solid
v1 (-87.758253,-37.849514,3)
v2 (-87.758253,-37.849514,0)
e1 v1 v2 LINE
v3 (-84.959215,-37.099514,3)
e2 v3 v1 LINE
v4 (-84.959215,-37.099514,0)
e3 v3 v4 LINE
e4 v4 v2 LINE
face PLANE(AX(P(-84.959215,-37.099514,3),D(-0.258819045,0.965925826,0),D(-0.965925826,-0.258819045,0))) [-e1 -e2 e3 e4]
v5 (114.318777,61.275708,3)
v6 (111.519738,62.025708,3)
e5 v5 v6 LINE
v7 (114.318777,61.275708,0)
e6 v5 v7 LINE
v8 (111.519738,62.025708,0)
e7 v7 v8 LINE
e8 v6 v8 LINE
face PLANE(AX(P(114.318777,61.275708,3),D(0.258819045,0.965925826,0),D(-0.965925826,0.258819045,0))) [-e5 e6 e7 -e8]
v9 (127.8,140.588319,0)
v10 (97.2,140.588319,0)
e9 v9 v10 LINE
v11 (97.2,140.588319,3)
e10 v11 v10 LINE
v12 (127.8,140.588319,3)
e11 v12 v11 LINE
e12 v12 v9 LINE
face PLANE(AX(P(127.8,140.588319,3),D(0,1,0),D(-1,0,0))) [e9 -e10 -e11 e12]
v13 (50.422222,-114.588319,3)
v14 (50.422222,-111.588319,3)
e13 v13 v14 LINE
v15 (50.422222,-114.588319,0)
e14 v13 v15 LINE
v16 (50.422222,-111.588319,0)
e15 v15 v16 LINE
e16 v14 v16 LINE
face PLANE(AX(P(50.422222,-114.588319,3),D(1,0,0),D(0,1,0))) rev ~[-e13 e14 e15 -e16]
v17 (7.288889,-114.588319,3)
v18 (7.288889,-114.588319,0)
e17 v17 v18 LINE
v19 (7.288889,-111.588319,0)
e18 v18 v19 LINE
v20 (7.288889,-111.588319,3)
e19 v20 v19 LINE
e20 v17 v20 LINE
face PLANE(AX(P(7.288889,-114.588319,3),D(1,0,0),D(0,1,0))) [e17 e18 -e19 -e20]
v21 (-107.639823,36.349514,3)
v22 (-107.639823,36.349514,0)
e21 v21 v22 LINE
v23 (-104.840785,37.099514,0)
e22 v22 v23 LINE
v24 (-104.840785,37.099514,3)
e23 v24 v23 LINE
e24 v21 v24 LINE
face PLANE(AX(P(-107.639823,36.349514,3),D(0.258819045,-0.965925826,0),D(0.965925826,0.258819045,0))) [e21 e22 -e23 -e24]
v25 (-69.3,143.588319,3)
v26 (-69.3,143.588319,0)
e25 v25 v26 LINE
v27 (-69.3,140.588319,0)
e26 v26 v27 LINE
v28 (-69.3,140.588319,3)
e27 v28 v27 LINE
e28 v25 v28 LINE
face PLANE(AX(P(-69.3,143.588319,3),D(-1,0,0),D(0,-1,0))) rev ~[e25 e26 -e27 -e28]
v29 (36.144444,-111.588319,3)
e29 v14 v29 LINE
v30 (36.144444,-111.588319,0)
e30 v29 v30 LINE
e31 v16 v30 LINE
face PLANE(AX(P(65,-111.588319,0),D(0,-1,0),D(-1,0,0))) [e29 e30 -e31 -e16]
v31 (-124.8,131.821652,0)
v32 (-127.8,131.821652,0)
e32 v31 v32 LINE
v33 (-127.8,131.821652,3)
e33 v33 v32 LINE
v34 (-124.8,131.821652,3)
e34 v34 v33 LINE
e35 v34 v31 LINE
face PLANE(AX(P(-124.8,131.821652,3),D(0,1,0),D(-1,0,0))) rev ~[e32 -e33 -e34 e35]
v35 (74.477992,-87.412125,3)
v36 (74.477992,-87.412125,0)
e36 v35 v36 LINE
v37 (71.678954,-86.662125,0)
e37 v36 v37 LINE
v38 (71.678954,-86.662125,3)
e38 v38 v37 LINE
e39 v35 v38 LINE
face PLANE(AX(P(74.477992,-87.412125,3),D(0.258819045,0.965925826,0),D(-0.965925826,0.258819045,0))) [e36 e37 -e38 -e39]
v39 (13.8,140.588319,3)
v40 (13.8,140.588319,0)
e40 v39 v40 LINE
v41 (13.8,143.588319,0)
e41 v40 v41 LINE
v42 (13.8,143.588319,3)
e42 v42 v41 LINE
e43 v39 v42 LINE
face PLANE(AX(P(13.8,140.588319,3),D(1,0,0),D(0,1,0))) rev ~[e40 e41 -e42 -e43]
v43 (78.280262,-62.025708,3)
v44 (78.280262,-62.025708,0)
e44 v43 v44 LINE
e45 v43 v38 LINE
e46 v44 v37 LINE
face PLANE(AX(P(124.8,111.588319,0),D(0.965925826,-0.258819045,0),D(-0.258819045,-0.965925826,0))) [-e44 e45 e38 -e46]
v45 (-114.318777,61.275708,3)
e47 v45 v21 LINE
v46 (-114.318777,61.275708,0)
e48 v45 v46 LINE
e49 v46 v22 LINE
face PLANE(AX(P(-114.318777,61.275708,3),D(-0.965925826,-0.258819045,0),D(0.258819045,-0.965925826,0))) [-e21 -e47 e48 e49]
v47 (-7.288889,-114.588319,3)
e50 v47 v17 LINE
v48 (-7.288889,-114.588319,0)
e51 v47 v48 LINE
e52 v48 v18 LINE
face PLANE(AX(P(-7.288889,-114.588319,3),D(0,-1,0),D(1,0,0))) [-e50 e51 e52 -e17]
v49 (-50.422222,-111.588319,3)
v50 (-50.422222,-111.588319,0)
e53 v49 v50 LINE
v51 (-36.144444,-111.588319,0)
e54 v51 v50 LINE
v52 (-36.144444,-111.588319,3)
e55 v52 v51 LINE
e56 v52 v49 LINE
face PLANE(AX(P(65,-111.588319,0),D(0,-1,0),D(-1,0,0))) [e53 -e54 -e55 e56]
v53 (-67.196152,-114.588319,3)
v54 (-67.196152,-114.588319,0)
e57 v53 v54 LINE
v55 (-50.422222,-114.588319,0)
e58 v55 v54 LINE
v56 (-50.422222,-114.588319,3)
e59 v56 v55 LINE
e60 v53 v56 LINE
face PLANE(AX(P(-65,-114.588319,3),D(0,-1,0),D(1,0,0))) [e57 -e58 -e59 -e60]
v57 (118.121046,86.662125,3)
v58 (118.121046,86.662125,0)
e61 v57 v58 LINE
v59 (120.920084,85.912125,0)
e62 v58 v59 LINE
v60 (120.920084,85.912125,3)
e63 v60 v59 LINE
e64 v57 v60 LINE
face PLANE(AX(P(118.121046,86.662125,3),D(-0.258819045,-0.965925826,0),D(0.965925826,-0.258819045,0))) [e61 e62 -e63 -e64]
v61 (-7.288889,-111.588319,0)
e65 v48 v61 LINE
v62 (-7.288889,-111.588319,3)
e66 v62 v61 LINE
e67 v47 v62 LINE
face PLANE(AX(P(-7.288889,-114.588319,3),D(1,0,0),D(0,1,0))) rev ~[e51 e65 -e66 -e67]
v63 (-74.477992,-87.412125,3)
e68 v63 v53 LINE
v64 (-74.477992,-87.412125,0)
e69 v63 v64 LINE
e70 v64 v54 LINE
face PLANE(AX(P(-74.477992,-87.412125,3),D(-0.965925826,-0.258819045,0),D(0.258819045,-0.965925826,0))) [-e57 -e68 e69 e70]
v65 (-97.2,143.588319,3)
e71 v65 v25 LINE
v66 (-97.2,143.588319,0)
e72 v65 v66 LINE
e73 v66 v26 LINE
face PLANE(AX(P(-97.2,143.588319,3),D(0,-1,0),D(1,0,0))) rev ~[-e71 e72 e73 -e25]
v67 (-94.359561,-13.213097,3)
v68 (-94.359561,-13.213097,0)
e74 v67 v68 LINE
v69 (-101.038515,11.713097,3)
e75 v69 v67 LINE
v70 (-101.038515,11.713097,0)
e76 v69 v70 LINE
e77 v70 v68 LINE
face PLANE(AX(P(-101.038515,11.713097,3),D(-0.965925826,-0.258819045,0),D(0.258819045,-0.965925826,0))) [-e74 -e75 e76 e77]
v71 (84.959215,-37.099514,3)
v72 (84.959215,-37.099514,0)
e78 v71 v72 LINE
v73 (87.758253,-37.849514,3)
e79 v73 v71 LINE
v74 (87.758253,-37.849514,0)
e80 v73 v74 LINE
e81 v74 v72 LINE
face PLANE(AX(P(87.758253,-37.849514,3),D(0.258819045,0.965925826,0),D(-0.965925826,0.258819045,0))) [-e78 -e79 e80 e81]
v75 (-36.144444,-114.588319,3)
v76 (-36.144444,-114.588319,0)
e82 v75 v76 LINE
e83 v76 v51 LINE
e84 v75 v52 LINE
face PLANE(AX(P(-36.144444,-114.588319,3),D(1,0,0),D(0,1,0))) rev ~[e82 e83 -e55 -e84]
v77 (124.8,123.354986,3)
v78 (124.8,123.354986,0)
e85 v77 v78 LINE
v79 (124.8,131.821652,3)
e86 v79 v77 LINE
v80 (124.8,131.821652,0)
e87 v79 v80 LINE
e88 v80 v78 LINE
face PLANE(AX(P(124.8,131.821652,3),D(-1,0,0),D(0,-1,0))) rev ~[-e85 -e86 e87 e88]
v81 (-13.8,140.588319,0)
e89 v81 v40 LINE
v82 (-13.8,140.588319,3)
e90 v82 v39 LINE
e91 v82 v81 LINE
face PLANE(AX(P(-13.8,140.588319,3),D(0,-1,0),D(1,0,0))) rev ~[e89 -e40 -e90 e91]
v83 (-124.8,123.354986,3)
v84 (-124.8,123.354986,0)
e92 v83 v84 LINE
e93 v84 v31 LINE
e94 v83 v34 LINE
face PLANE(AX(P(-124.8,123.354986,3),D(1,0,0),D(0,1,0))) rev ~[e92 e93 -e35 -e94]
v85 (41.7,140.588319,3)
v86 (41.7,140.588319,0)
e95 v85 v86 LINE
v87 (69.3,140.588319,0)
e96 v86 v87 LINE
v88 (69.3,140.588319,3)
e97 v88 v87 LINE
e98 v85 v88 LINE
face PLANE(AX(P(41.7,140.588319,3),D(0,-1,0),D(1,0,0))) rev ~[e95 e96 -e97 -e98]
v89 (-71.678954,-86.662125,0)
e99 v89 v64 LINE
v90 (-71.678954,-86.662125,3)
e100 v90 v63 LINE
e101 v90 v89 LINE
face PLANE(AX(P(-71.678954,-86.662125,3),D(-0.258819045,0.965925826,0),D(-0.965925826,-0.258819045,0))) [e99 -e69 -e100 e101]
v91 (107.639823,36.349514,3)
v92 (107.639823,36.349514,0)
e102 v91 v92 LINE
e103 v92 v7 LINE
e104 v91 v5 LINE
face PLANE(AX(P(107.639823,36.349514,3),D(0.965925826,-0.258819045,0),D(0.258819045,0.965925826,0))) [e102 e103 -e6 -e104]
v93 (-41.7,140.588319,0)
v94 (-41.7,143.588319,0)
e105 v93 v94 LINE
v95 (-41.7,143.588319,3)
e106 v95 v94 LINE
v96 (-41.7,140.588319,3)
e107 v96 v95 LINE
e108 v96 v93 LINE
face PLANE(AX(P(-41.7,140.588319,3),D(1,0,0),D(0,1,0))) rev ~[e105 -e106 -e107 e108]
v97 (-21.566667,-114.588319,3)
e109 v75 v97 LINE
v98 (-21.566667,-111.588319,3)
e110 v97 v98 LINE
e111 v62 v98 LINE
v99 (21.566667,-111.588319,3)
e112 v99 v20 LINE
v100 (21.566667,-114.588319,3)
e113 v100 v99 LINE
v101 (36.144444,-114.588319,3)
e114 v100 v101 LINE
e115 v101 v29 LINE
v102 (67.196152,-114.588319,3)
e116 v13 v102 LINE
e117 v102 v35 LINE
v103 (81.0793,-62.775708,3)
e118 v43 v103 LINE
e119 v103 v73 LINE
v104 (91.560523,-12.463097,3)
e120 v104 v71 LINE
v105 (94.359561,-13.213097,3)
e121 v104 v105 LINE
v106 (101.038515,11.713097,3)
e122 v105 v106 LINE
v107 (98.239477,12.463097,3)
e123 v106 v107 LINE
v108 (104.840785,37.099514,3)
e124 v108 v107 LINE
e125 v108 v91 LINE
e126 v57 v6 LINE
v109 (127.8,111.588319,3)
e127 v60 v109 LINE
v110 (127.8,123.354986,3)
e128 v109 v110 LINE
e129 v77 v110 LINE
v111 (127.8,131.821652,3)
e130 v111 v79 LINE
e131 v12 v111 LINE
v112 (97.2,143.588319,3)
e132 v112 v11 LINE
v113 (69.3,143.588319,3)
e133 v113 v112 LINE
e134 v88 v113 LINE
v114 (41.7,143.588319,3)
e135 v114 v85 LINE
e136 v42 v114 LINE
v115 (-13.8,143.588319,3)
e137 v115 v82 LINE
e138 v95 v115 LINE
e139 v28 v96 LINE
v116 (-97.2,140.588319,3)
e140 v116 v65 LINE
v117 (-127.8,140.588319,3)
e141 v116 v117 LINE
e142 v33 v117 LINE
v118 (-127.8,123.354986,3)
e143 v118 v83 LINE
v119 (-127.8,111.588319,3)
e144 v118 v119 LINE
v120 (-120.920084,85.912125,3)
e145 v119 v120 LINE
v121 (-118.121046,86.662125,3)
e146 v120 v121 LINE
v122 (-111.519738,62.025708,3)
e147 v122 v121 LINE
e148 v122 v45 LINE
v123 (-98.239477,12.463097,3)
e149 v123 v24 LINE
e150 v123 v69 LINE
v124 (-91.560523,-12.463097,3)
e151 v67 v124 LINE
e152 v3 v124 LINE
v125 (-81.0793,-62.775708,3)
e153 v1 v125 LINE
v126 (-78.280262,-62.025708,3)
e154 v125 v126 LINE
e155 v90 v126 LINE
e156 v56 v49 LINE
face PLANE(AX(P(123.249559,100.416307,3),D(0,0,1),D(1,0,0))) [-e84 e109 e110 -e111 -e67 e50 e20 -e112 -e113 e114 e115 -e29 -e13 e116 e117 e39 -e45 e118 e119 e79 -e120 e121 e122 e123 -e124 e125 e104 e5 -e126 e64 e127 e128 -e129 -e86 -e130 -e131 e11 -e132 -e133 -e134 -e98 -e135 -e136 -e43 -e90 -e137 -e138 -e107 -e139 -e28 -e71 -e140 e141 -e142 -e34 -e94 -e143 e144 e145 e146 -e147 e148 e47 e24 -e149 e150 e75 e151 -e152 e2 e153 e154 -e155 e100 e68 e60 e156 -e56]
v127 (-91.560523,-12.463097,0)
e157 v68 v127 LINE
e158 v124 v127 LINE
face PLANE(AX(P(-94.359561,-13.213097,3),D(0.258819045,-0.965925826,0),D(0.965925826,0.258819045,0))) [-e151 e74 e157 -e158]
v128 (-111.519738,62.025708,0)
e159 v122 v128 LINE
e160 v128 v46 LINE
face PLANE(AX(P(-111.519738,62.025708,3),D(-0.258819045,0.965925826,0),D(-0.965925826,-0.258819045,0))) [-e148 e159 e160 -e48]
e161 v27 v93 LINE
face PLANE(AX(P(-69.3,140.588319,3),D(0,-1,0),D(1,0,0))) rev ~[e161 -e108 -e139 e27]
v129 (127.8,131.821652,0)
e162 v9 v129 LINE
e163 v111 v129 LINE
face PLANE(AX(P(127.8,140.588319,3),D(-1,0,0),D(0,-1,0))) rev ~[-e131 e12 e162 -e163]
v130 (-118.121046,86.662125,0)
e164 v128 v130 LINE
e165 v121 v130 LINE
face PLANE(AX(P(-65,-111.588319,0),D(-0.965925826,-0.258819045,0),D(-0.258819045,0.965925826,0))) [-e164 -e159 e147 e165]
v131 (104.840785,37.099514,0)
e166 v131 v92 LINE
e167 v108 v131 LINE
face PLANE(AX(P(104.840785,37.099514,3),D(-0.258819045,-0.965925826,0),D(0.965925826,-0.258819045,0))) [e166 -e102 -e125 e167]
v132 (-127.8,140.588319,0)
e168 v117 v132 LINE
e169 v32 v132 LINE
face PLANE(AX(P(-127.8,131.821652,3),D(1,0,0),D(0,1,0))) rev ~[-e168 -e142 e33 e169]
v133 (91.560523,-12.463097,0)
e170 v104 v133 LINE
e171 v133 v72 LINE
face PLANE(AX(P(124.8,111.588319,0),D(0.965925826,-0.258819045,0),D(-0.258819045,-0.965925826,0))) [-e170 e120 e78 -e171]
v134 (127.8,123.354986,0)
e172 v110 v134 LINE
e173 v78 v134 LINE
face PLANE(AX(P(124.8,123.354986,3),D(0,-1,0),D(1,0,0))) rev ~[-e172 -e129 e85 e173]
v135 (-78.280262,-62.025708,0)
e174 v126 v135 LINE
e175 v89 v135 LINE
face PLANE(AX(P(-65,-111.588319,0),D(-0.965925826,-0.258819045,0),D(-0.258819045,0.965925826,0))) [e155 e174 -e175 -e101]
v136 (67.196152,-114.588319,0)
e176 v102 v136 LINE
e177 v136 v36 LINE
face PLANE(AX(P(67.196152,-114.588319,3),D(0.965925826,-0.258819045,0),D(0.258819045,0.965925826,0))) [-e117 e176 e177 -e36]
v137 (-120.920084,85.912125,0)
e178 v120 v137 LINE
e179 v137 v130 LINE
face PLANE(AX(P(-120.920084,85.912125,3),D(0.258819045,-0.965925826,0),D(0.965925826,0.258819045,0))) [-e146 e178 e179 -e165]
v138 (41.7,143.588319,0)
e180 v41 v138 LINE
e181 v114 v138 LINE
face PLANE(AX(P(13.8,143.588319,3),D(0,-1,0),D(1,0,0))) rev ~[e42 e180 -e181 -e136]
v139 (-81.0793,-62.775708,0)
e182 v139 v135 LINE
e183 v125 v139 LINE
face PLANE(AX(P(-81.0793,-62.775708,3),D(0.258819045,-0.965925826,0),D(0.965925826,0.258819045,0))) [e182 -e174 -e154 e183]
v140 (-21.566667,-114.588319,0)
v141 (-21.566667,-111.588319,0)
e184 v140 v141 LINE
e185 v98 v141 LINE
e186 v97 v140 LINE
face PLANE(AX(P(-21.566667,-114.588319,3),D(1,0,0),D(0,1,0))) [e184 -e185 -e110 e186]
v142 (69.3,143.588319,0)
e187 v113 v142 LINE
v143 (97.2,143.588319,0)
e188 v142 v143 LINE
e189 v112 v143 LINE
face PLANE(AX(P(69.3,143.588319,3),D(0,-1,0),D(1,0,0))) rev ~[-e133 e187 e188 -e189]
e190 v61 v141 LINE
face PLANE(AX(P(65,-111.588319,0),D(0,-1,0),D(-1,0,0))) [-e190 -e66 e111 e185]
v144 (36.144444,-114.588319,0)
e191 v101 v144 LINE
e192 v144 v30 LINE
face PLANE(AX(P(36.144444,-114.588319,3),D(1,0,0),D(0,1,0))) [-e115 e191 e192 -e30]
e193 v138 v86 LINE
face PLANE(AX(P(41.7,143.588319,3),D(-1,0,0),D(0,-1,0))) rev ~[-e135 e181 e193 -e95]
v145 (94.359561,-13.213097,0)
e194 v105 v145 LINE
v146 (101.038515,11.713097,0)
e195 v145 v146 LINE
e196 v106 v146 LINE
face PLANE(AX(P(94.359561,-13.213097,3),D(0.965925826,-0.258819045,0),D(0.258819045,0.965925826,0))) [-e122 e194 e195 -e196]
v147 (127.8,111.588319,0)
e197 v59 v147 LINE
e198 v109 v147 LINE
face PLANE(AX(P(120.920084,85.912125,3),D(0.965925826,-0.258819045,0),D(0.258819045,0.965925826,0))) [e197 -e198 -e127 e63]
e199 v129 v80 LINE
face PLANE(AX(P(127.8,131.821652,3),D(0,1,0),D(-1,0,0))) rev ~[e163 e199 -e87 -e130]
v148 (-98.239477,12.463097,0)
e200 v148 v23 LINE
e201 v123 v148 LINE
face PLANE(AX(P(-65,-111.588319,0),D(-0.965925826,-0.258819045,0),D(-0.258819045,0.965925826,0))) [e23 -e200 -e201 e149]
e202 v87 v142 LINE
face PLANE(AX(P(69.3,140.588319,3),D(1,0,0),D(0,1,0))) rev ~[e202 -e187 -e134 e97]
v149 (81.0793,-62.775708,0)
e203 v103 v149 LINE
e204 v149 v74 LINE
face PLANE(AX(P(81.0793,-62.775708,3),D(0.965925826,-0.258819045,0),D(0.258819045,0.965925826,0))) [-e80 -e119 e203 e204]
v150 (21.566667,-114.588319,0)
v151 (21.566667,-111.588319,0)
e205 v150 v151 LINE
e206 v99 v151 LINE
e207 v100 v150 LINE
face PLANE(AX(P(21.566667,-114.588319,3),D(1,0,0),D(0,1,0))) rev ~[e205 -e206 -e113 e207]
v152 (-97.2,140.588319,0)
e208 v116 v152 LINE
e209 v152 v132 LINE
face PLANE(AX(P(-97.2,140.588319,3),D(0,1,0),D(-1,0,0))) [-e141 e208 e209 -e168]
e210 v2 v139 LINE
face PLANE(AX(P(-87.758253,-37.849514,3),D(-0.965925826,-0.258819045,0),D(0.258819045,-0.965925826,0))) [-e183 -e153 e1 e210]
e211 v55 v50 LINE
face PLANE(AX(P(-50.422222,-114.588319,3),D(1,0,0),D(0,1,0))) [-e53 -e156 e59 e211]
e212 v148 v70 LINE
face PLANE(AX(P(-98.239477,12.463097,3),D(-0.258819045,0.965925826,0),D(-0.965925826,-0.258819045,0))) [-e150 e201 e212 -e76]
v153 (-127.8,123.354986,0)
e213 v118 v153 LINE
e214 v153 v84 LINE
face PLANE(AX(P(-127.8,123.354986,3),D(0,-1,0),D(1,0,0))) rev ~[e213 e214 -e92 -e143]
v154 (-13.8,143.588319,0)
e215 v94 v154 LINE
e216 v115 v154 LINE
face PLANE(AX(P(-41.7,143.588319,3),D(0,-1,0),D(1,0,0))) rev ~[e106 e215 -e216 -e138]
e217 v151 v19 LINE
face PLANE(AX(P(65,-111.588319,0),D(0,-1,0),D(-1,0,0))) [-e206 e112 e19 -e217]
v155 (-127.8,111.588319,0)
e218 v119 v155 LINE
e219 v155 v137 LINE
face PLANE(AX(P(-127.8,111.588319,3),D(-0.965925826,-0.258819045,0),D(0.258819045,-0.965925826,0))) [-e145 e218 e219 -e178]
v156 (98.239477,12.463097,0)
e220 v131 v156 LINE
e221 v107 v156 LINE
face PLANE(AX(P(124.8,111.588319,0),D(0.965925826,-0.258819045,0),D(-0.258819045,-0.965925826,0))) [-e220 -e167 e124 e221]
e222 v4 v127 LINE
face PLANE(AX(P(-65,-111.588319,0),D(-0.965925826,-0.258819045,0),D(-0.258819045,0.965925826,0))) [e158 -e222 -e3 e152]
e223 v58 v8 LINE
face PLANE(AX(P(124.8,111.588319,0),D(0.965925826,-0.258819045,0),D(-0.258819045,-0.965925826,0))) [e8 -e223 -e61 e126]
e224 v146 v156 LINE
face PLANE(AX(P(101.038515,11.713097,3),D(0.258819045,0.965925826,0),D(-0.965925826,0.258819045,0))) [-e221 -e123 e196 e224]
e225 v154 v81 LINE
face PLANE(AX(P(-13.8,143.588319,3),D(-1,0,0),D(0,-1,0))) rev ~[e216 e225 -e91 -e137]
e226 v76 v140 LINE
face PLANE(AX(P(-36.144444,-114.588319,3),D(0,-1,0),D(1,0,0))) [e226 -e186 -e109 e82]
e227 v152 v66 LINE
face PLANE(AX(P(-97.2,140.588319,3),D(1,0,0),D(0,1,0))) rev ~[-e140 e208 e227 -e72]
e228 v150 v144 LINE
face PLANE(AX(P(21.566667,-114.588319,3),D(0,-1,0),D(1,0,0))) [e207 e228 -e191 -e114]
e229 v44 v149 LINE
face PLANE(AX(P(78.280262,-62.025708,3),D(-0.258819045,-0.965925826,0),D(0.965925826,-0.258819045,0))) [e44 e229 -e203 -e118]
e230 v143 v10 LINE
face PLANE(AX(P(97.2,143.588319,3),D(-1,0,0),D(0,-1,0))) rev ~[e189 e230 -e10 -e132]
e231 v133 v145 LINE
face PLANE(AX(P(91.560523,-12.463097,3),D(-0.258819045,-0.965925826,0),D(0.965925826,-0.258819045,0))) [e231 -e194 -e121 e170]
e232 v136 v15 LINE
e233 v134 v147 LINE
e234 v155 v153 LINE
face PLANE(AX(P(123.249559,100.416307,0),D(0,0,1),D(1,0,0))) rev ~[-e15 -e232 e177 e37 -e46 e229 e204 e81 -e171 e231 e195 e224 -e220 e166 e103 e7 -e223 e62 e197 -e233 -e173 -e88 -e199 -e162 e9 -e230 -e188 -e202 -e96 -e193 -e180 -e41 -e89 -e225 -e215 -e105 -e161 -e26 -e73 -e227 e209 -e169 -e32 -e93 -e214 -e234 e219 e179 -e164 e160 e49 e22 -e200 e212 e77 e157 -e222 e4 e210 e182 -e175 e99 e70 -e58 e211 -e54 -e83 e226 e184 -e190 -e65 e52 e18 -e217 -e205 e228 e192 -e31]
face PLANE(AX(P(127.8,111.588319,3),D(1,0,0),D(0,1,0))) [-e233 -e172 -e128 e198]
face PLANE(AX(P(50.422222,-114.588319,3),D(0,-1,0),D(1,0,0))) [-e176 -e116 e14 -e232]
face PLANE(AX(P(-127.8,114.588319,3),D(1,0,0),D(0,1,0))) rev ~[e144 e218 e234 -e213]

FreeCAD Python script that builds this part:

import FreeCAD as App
import Part
import Sketcher
Q = App.Units.Quantity

doc = App.newDocument("Part")
body = doc.addObject("PartDesign::Body", "Body")

# Sketch on XY plane
sketch1 = doc.addObject("Sketcher::SketchObject", "Sketch")
body.addObject(sketch1)
sketch1.AttachmentSupport = (doc.XY_Plane, [""])
sketch1.MapMode = "FlatFace"
sketch1.addGeometry(Part.LineSegment(App.Vector(125, 112, 0), App.Vector(-125, 112, 0)), False)
sketch1.addGeometry(Part.LineSegment(App.Vector(-125, 112, 0), App.Vector(-65, -112, 0)), False)
sketch1.addGeometry(Part.LineSegment(App.Vector(-65, -112, 0), App.Vector(65, -112, 0)), False)
sketch1.addGeometry(Part.LineSegment(App.Vector(65, -112, 0), App.Vector(125, 112, 0)), False)
sketch1.addConstraint(Sketcher.Constraint("Coincident", 0, 2, 1, 1))
sketch1.addConstraint(Sketcher.Constraint("Coincident", 1, 2, 2, 1))
sketch1.addConstraint(Sketcher.Constraint("Coincident", 2, 2, 3, 1))
sketch1.addConstraint(Sketcher.Constraint("Coincident", 3, 2, 0, 1))
sketch1.addConstraint(Sketcher.Constraint("Horizontal", 0))
sketch1.addConstraint(Sketcher.Constraint("Horizontal", 2))
sketch1.addConstraint(Sketcher.Constraint("Equal", 1, 3))
sketch1.addConstraint(Sketcher.Constraint("DistanceX", 2, 1, 2, 2, 130.0))
sketch1.addConstraint(Sketcher.Constraint("Angle", 1, Q("-75 deg")))
sketch1.addConstraint(Sketcher.Constraint("DistanceX", 0, 2, 0, 1, 249.6))
sketch1.addConstraint(Sketcher.Constraint("DistanceX", 1, 2, -1, 1, 65.0))
sketch1.addConstraint(Sketcher.Constraint("DistanceY", -1, 1, 0, 2, 111.588319))
pad1 = doc.addObject("PartDesign::Pad", "Pad")
body.addObject(pad1)
pad1.Profile = sketch1
pad1.Length = 3

# Sketch on XY plane
sketch2 = doc.addObject("Sketcher::SketchObject", "Sketch001")
body.addObject(sketch2)
sketch2.AttachmentSupport = (doc.XY_Plane, [""])
sketch2.MapMode = "FlatFace"
sketch2.AttachmentOffset = App.Placement(App.Vector(0, 0, 3), App.Rotation())
sketch2.addGeometry(Part.LineSegment(App.Vector(-124.8, 114.6, 0), App.Vector(-124.8, 111.6, 0)), False)
sketch2.addGeometry(Part.LineSegment(App.Vector(-124.8, 111.6, 0), App.Vector(124.8, 111.6, 0)), False)
sketch2.addGeometry(Part.LineSegment(App.Vector(124.8, 111.6, 0), App.Vector(124.8, 114.6, 0)), False)
sketch2.addGeometry(Part.LineSegment(App.Vector(124.8, 114.6, 0), App.Vector(-124.8, 114.6, 0)), False)
sketch2.addGeometry(Part.LineSegment(App.Vector(-65, -111.6, 0), App.Vector(-65, -114.6, 0)), False)
sketch2.addGeometry(Part.LineSegment(App.Vector(-65, -114.6, 0), App.Vector(-50.4, -114.6, 0)), False)
sketch2.addGeometry(Part.LineSegment(App.Vector(-50.4, -114.6, 0), App.Vector(-50.4, -111.6, 0)), False)
sketch2.addGeometry(Part.LineSegment(App.Vector(-50.4, -111.6, 0), App.Vector(-65, -111.6, 0)), False)
sketch2.addGeometry(Part.LineSegment(App.Vector(-36.1, -111.6, 0), App.Vector(-36.1, -114.6, 0)), False)
sketch2.addGeometry(Part.LineSegment(App.Vector(-36.1, -114.6, 0), App.Vector(-21.6, -114.6, 0)), False)
sketch2.addGeometry(Part.LineSegment(App.Vector(-21.6, -114.6, 0), App.Vector(-21.6, -111.6, 0)), False)
sketch2.addGeometry(Part.LineSegment(App.Vector(-21.6, -111.6, 0), App.Vector(-36.1, -111.6, 0)), False)
sketch2.addGeometry(Part.LineSegment(App.Vector(-7.3, -111.6, 0), App.Vector(-7.3, -114.6, 0)), False)
sketch2.addGeometry(Part.LineSegment(App.Vector(-7.3, -114.6, 0), App.Vector(7.3, -114.6, 0)), False)
sketch2.addGeometry(Part.LineSegment(App.Vector(7.3, -114.6, 0), App.Vector(7.3, -111.6, 0)), False)
sketch2.addGeometry(Part.LineSegment(App.Vector(7.3, -111.6, 0), App.Vector(-7.3, -111.6, 0)), False)
sketch2.addGeometry(Part.LineSegment(App.Vector(21.6, -111.6, 0), App.Vector(21.6, -114.6, 0)), False)
sketch2.addGeometry(Part.LineSegment(App.Vector(21.6, -114.6, 0), App.Vector(36.1, -114.6, 0)), False)
sketch2.addGeometry(Part.LineSegment(App.Vector(36.1, -114.6, 0), App.Vector(36.1, -111.6, 0)), False)
sketch2.addGeometry(Part.LineSegment(App.Vector(36.1, -111.6, 0), App.Vector(21.6, -111.6, 0)), False)
sketch2.addGeometry(Part.LineSegment(App.Vector(50.4, -111.6, 0), App.Vector(50.4, -114.6, 0)), False)
sketch2.addGeometry(Part.LineSegment(App.Vector(50.4, -114.6, 0), App.Vector(65, -114.6, 0)), False)
sketch2.addGeometry(Part.LineSegment(App.Vector(65, -114.6, 0), App.Vector(65, -111.6, 0)), False)
sketch2.addGeometry(Part.LineSegment(App.Vector(65, -111.6, 0), App.Vector(50.4, -111.6, 0)), False)
sketch2.addConstraint(Sketcher.Constraint("Coincident", 0, 2, 1, 1))
sketch2.addConstraint(Sketcher.Constraint("Coincident", 1, 2, 2, 1))
sketch2.addConstraint(Sketcher.Constraint("Coincident", 2, 2, 3, 1))
sketch2.addConstraint(Sketcher.Constraint("Coincident", 3, 2, 0, 1))
sketch2.addConstraint(Sketcher.Constraint("Coincident", 4, 2, 5, 1))
sketch2.addConstraint(Sketcher.Constraint("Coincident", 5, 2, 6, 1))
sketch2.addConstraint(Sketcher.Constraint("Coincident", 6, 2, 7, 1))
sketch2.addConstraint(Sketcher.Constraint("Coincident", 7, 2, 4, 1))
sketch2.addConstraint(Sketcher.Constraint("Coincident", 8, 2, 9, 1))
sketch2.addConstraint(Sketcher.Constraint("Coincident", 9, 2, 10, 1))
sketch2.addConstraint(Sketcher.Constraint("Coincident", 10, 2, 11, 1))
sketch2.addConstraint(Sketcher.Constraint("Coincident", 11, 2, 8, 1))
sketch2.addConstraint(Sketcher.Constraint("Coincident", 12, 2, 13, 1))
sketch2.addConstraint(Sketcher.Constraint("Coincident", 13, 2, 14, 1))
sketch2.addConstraint(Sketcher.Constraint("Coincident", 14, 2, 15, 1))
sketch2.addConstraint(Sketcher.Constraint("Coincident", 15, 2, 12, 1))
sketch2.addConstraint(Sketcher.Constraint("Coincident", 16, 2, 17, 1))
sketch2.addConstraint(Sketcher.Constraint("Coincident", 17, 2, 18, 1))
sketch2.addConstraint(Sketcher.Constraint("Coincident", 18, 2, 19, 1))
sketch2.addConstraint(Sketcher.Constraint("Coincident", 19, 2, 16, 1))
sketch2.addConstraint(Sketcher.Constraint("Coincident", 20, 2, 21, 1))
sketch2.addConstraint(Sketcher.Constraint("Coincident", 21, 2, 22, 1))
sketch2.addConstraint(Sketcher.Constraint("Coincident", 22, 2, 23, 1))
sketch2.addConstraint(Sketcher.Constraint("Coincident", 23, 2, 20, 1))
sketch2.addConstraint(Sketcher.Constraint("Vertical", 0))
sketch2.addConstraint(Sketcher.Constraint("Horizontal", 1))
sketch2.addConstraint(Sketcher.Constraint("Vertical", 2))
sketch2.addConstraint(Sketcher.Constraint("Horizontal", 3))
sketch2.addConstraint(Sketcher.Constraint("Vertical", 4))
sketch2.addConstraint(Sketcher.Constraint("Horizontal", 5))
sketch2.addConstraint(Sketcher.Constraint("Vertical", 6))
sketch2.addConstraint(Sketcher.Constraint("Horizontal", 7))
sketch2.addConstraint(Sketcher.Constraint("Vertical", 8))
sketch2.addConstraint(Sketcher.Constraint("Horizontal", 9))
sketch2.addConstraint(Sketcher.Constraint("Vertical", 10))
sketch2.addConstraint(Sketcher.Constraint("Horizontal", 11))
sketch2.addConstraint(Sketcher.Constraint("Vertical", 12))
sketch2.addConstraint(Sketcher.Constraint("Horizontal", 13))
sketch2.addConstraint(Sketcher.Constraint("Vertical", 14))
sketch2.addConstraint(Sketcher.Constraint("Horizontal", 15))
sketch2.addConstraint(Sketcher.Constraint("Vertical", 16))
sketch2.addConstraint(Sketcher.Constraint("Horizontal", 17))
sketch2.addConstraint(Sketcher.Constraint("Vertical", 18))
sketch2.addConstraint(Sketcher.Constraint("Horizontal", 19))
sketch2.addConstraint(Sketcher.Constraint("Vertical", 20))
sketch2.addConstraint(Sketcher.Constraint("Horizontal", 21))
sketch2.addConstraint(Sketcher.Constraint("Vertical", 22))
sketch2.addConstraint(Sketcher.Constraint("Horizontal", 23))
sketch2.addConstraint(Sketcher.Constraint("Symmetric", 9, 2, 16, 2, -2))
sketch2.addConstraint(Sketcher.Constraint("Symmetric", 11, 2, 18, 2, -2))
sketch2.addConstraint(Sketcher.Constraint("Symmetric", 5, 2, 20, 2, -2))
sketch2.addConstraint(Sketcher.Constraint("Symmetric", 7, 2, 22, 2, -2))
sketch2.addConstraint(Sketcher.Constraint("Horizontal", 5, 2, 8, 2))
sketch2.addConstraint(Sketcher.Constraint("Horizontal", 7, 2, 10, 2))
sketch2.addConstraint(Sketcher.Constraint("Horizontal", 9, 2, 12, 2))
sketch2.addConstraint(Sketcher.Constraint("Horizontal", 11, 2, 14, 2))
sketch2.addConstraint(Sketcher.Constraint("Equal", 7, 9))
sketch2.addConstraint(Sketcher.Constraint("Equal", 11, 13))
sketch2.addConstraint(Sketcher.Constraint("Equal", 2, 4))
sketch2.addConstraint(Sketcher.Constraint("DistanceY", 0, 2, 0, 1, 3.0))
sketch2.addConstraint(Sketcher.Constraint("DistanceX", 1, 1, 1, 2, 249.6))
sketch2.addConstraint(Sketcher.Constraint("DistanceX", 4, 2, -1, 1, 65.0))
sketch2.addConstraint(Sketcher.Constraint("DistanceX", 0, 2, -1, 1, 124.8))
sketch2.addConstraint(Sketcher.Constraint("DistanceX", 5, 1, 5, 2, 14.577778))
sketch2.addConstraint(Sketcher.Constraint("DistanceY", -1, 1, 0, 2, 111.588319))
sketch2.addConstraint(Sketcher.Constraint("DistanceY", 4, 2, -1, 1, 114.588319))
sketch2.addConstraint(Sketcher.Constraint("DistanceX", 12, 2, -1, 1, 7.288889))
sketch2.addConstraint(Sketcher.Constraint("DistanceX", 8, 2, -1, 1, 36.144444))
pad2 = doc.addObject("PartDesign::Pad", "Pad001")
body.addObject(pad2)
pad2.Profile = sketch2
pad2.Type = "UpToLast"
pad2.Reversed = True

# Sketch on XY plane
sketch3 = doc.addObject("Sketcher::SketchObject", "Sketch002")
body.addObject(sketch3)
sketch3.AttachmentSupport = (doc.XY_Plane, [""])
sketch3.MapMode = "FlatFace"
sketch3.AttachmentOffset = App.Placement(App.Vector(0, 0, 3), App.Rotation())
sketch3.addGeometry(Part.LineSegment(App.Vector(-97.2, 140.6, 0), App.Vector(-127.8, 140.6, 0)), False)
sketch3.addGeometry(Part.LineSegment(App.Vector(-127.8, 140.6, 0), App.Vector(-127.8, 131.8, 0)), False)
sketch3.addGeometry(Part.LineSegment(App.Vector(-127.8, 131.8, 0), App.Vector(-124.8, 131.8, 0)), False)
sketch3.addGeometry(Part.LineSegment(App.Vector(-124.8, 131.8, 0), App.Vector(-124.8, 123.4, 0)), False)
sketch3.addGeometry(Part.LineSegment(App.Vector(-124.8, 123.4, 0), App.Vector(-127.8, 123.4, 0)), False)
sketch3.addGeometry(Part.LineSegment(App.Vector(-127.8, 123.4, 0), App.Vector(-127.8, 114.6, 0)), False)
sketch3.addGeometry(Part.LineSegment(App.Vector(-127.8, 114.6, 0), App.Vector(127.8, 114.6, 0)), False)
sketch3.addGeometry(Part.LineSegment(App.Vector(127.8, 114.6, 0), App.Vector(127.8, 123.4, 0)), False)
sketch3.addGeometry(Part.LineSegment(App.Vector(127.8, 123.4, 0), App.Vector(124.8, 123.4, 0)), False)
sketch3.addGeometry(Part.LineSegment(App.Vector(124.8, 123.4, 0), App.Vector(124.8, 131.8, 0)), False)
sketch3.addGeometry(Part.LineSegment(App.Vector(124.8, 131.8, 0), App.Vector(127.8, 131.8, 0)), False)
sketch3.addGeometry(Part.LineSegment(App.Vector(127.8, 131.8, 0), App.Vector(127.8, 140.6, 0)), False)
sketch3.addGeometry(Part.LineSegment(App.Vector(127.8, 140.6, 0), App.Vector(97.2, 140.6, 0)), False)
sketch3.addGeometry(Part.LineSegment(App.Vector(97.2, 140.6, 0), App.Vector(97.2, 143.6, 0)), False)
sketch3.addGeometry(Part.LineSegment(App.Vector(97.2, 143.6, 0), App.Vector(69.3, 143.6, 0)), False)
sketch3.addGeometry(Part.LineSegment(App.Vector(69.3, 143.6, 0), App.Vector(69.3, 140.6, 0)), False)
sketch3.addGeometry(Part.LineSegment(App.Vector(69.3, 140.6, 0), App.Vector(41.7, 140.6, 0)), False)
sketch3.addGeometry(Part.LineSegment(App.Vector(41.7, 140.6, 0), App.Vector(41.7, 143.6, 0)), False)
sketch3.addGeometry(Part.LineSegment(App.Vector(41.7, 143.6, 0), App.Vector(13.8, 143.6, 0)), False)
sketch3.addGeometry(Part.LineSegment(App.Vector(13.8, 143.6, 0), App.Vector(13.8, 140.6, 0)), False)
sketch3.addGeometry(Part.LineSegment(App.Vector(13.8, 140.6, 0), App.Vector(-13.8, 140.6, 0)), False)
sketch3.addGeometry(Part.LineSegment(App.Vector(-13.8, 140.6, 0), App.Vector(-13.8, 143.6, 0)), False)
sketch3.addGeometry(Part.LineSegment(App.Vector(-13.8, 143.6, 0), App.Vector(-41.7, 143.6, 0)), False)
sketch3.addGeometry(Part.LineSegment(App.Vector(-41.7, 143.6, 0), App.Vector(-41.7, 140.6, 0)), False)
sketch3.addGeometry(Part.LineSegment(App.Vector(-41.7, 140.6, 0), App.Vector(-69.3, 140.6, 0)), False)
sketch3.addGeometry(Part.LineSegment(App.Vector(-69.3, 140.6, 0), App.Vector(-69.3, 143.6, 0)), False)
sketch3.addGeometry(Part.LineSegment(App.Vector(-69.3, 143.6, 0), App.Vector(-97.2, 143.6, 0)), False)
sketch3.addGeometry(Part.LineSegment(App.Vector(-97.2, 143.6, 0), App.Vector(-97.2, 140.6, 0)), False)
sketch3.addConstraint(Sketcher.Constraint("Coincident", 0, 2, 1, 1))
sketch3.addConstraint(Sketcher.Constraint("Coincident", 1, 2, 2, 1))
sketch3.addConstraint(Sketcher.Constraint("Coincident", 2, 2, 3, 1))
sketch3.addConstraint(Sketcher.Constraint("Coincident", 3, 2, 4, 1))
sketch3.addConstraint(Sketcher.Constraint("Coincident", 4, 2, 5, 1))
sketch3.addConstraint(Sketcher.Constraint("Coincident", 5, 2, 6, 1))
sketch3.addConstraint(Sketcher.Constraint("Coincident", 6, 2, 7, 1))
sketch3.addConstraint(Sketcher.Constraint("Coincident", 7, 2, 8, 1))
sketch3.addConstraint(Sketcher.Constraint("Coincident", 8, 2, 9, 1))
sketch3.addConstraint(Sketcher.Constraint("Coincident", 9, 2, 10, 1))
sketch3.addConstraint(Sketcher.Constraint("Coincident", 10, 2, 11, 1))
sketch3.addConstraint(Sketcher.Constraint("Coincident", 11, 2, 12, 1))
sketch3.addConstraint(Sketcher.Constraint("Coincident", 12, 2, 13, 1))
sketch3.addConstraint(Sketcher.Constraint("Coincident", 13, 2, 14, 1))
sketch3.addConstraint(Sketcher.Constraint("Coincident", 14, 2, 15, 1))
sketch3.addConstraint(Sketcher.Constraint("Coincident", 15, 2, 16, 1))
sketch3.addConstraint(Sketcher.Constraint("Coincident", 16, 2, 17, 1))
sketch3.addConstraint(Sketcher.Constraint("Coincident", 17, 2, 18, 1))
sketch3.addConstraint(Sketcher.Constraint("Coincident", 18, 2, 19, 1))
sketch3.addConstraint(Sketcher.Constraint("Coincident", 19, 2, 20, 1))
sketch3.addConstraint(Sketcher.Constraint("Coincident", 20, 2, 21, 1))
sketch3.addConstraint(Sketcher.Constraint("Coincident", 21, 2, 22, 1))
sketch3.addConstraint(Sketcher.Constraint("Coincident", 22, 2, 23, 1))
sketch3.addConstraint(Sketcher.Constraint("Coincident", 23, 2, 24, 1))
sketch3.addConstraint(Sketcher.Constraint("Coincident", 24, 2, 25, 1))
sketch3.addConstraint(Sketcher.Constraint("Coincident", 25, 2, 26, 1))
sketch3.addConstraint(Sketcher.Constraint("Coincident", 26, 2, 27, 1))
sketch3.addConstraint(Sketcher.Constraint("Coincident", 27, 2, 0, 1))
sketch3.addConstraint(Sketcher.Constraint("Horizontal", 0))
sketch3.addConstraint(Sketcher.Constraint("Vertical", 1))
sketch3.addConstraint(Sketcher.Constraint("Horizontal", 2))
sketch3.addConstraint(Sketcher.Constraint("Vertical", 3))
sketch3.addConstraint(Sketcher.Constraint("Horizontal", 4))
sketch3.addConstraint(Sketcher.Constraint("Vertical", 5))
sketch3.addConstraint(Sketcher.Constraint("Horizontal", 6))
sketch3.addConstraint(Sketcher.Constraint("Vertical", 7))
sketch3.addConstraint(Sketcher.Constraint("Horizontal", 8))
sketch3.addConstraint(Sketcher.Constraint("Vertical", 9))
sketch3.addConstraint(Sketcher.Constraint("Horizontal", 10))
sketch3.addConstraint(Sketcher.Constraint("Vertical", 11))
sketch3.addConstraint(Sketcher.Constraint("Horizontal", 12))
sketch3.addConstraint(Sketcher.Constraint("Vertical", 13))
sketch3.addConstraint(Sketcher.Constraint("Horizontal", 14))
sketch3.addConstraint(Sketcher.Constraint("Vertical", 15))
sketch3.addConstraint(Sketcher.Constraint("Horizontal", 16))
sketch3.addConstraint(Sketcher.Constraint("Vertical", 17))
sketch3.addConstraint(Sketcher.Constraint("Horizontal", 18))
sketch3.addConstraint(Sketcher.Constraint("Vertical", 19))
sketch3.addConstraint(Sketcher.Constraint("Horizontal", 20))
sketch3.addConstraint(Sketcher.Constraint("Vertical", 21))
sketch3.addConstraint(Sketcher.Constraint("Horizontal", 22))
sketch3.addConstraint(Sketcher.Constraint("Vertical", 23))
sketch3.addConstraint(Sketcher.Constraint("Horizontal", 24))
sketch3.addConstraint(Sketcher.Constraint("Vertical", 25))
sketch3.addConstraint(Sketcher.Constraint("Horizontal", 26))
sketch3.addConstraint(Sketcher.Constraint("Vertical", 27))
sketch3.addConstraint(Sketcher.Constraint("Symmetric", 4, 2, 7, 2, -2))
sketch3.addConstraint(Sketcher.Constraint("Symmetric", 2, 2, 9, 2, -2))
sketch3.addConstraint(Sketcher.Constraint("Symmetric", 0, 2, 11, 2, -2))
sketch3.addConstraint(Sketcher.Constraint("Symmetric", 18, 2, 21, 2, -2))
sketch3.addConstraint(Sketcher.Constraint("Symmetric", 16, 2, 23, 2, -2))
sketch3.addConstraint(Sketcher.Constraint("Symmetric", 14, 2, 25, 2, -2))
sketch3.addConstraint(Sketcher.Constraint("Horizontal", 12, 2, 15, 2))
sketch3.addConstraint(Sketcher.Constraint("Horizontal", 14, 2, 17, 2))
sketch3.addConstraint(Sketcher.Constraint("Horizontal", 16, 2, 19, 2))
sketch3.addConstraint(Sketcher.Constraint("Vertical", 1, 2, 4, 2))
sketch3.addConstraint(Sketcher.Constraint("Equal", 0, 12))
sketch3.addConstraint(Sketcher.Constraint("Equal", 14, 18))
sketch3.addConstraint(Sketcher.Constraint("Equal", 16, 20))
sketch3.addConstraint(Sketcher.Constraint("Equal", 1, 5))
sketch3.addConstraint(Sketcher.Constraint("Equal", 10, 13))
sketch3.addConstraint(Sketcher.Constraint("DistanceX", 2, 1, 2, 2, 3.0))
sketch3.addConstraint(Sketcher.Constraint("DistanceX", 0, 2, 0, 1, 30.6))
sketch3.addConstraint(Sketcher.Constraint("DistanceX", 6, 1, 6, 2, 255.6))
sketch3.addConstraint(Sketcher.Constraint("DistanceX", 14, 2, 14, 1, 27.9))
sketch3.addConstraint(Sketcher.Constraint("DistanceY", 5, 2, 0, 2, 26.0))
sketch3.addConstraint(Sketcher.Constraint("DistanceY", 1, 2, 1, 1, 8.766667))
sketch3.addConstraint(Sketcher.Constraint("DistanceY", -1, 1, 0, 2, 140.588319))
pad3 = doc.addObject("PartDesign::Pad", "Pad002")
body.addObject(pad3)
pad3.Profile = sketch3
pad3.Length = 3
pad3.Reversed = True

# Sketch on XY plane
sketch4 = doc.addObject("Sketcher::SketchObject", "Sketch003")
body.addObject(sketch4)
sketch4.AttachmentSupport = (doc.XY_Plane, [""])
sketch4.MapMode = "FlatFace"
sketch4.AttachmentOffset = App.Placement(App.Vector(0, 0, 3), App.Rotation())
sketch4.addGeometry(Part.LineSegment(App.Vector(127.8, 114.6, 0), App.Vector(124.8, 114.6, 0)), False)
sketch4.addGeometry(Part.LineSegment(App.Vector(124.8, 114.6, 0), App.Vector(124.8, 111.6, 0)), False)
sketch4.addGeometry(Part.LineSegment(App.Vector(124.8, 111.6, 0), App.Vector(118.1, 86.7, 0)), False)
sketch4.addGeometry(Part.LineSegment(App.Vector(118.1, 86.7, 0), App.Vector(120.9, 85.9, 0)), False)
sketch4.addGeometry(Part.LineSegment(App.Vector(120.9, 85.9, 0), App.Vector(127.8, 111.6, 0)), False)
sketch4.addGeometry(Part.LineSegment(App.Vector(127.8, 111.6, 0), App.Vector(127.8, 114.6, 0)), False)
sketch4.addGeometry(Part.LineSegment(App.Vector(74.5, -87.4, 0), App.Vector(71.7, -86.7, 0)), False)
sketch4.addGeometry(Part.LineSegment(App.Vector(71.7, -86.7, 0), App.Vector(65, -111.6, 0)), False)
sketch4.addGeometry(Part.LineSegment(App.Vector(65, -111.6, 0), App.Vector(65, -114.6, 0)), False)
sketch4.addGeometry(Part.LineSegment(App.Vector(65, -114.6, 0), App.Vector(67.2, -114.6, 0)), False)
sketch4.addGeometry(Part.LineSegment(App.Vector(67.2, -114.6, 0), App.Vector(74.5, -87.4, 0)), False)
sketch4.addGeometry(Part.LineSegment(App.Vector(87.8, -37.8, 0), App.Vector(85, -37.1, 0)), False)
sketch4.addGeometry(Part.LineSegment(App.Vector(85, -37.1, 0), App.Vector(78.3, -62, 0)), False)
sketch4.addGeometry(Part.LineSegment(App.Vector(78.3, -62, 0), App.Vector(81.1, -62.8, 0)), False)
sketch4.addGeometry(Part.LineSegment(App.Vector(81.1, -62.8, 0), App.Vector(87.8, -37.8, 0)), False)
sketch4.addGeometry(Part.LineSegment(App.Vector(101, 11.7, 0), App.Vector(98.2, 12.5, 0)), False)
sketch4.addGeometry(Part.LineSegment(App.Vector(98.2, 12.5, 0), App.Vector(91.6, -12.5, 0)), False)
sketch4.addGeometry(Part.LineSegment(App.Vector(91.6, -12.5, 0), App.Vector(94.4, -13.2, 0)), False)
sketch4.addGeometry(Part.LineSegment(App.Vector(94.4, -13.2, 0), App.Vector(101, 11.7, 0)), False)
sketch4.addGeometry(Part.LineSegment(App.Vector(114.3, 61.3, 0), App.Vector(111.5, 62, 0)), False)
sketch4.addGeometry(Part.LineSegment(App.Vector(111.5, 62, 0), App.Vector(104.8, 37.1, 0)), False)
sketch4.addGeometry(Part.LineSegment(App.Vector(104.8, 37.1, 0), App.Vector(107.6, 36.3, 0)), False)
sketch4.addGeometry(Part.LineSegment(App.Vector(107.6, 36.3, 0), App.Vector(114.3, 61.3, 0)), False)
sketch4.addGeometry(Part.LineSegment(App.Vector(-65, -111.6, 0), App.Vector(-71.7, -86.7, 0)), False)
sketch4.addGeometry(Part.LineSegment(App.Vector(-71.7, -86.7, 0), App.Vector(-74.5, -87.4, 0)), False)
sketch4.addGeometry(Part.LineSegment(App.Vector(-74.5, -87.4, 0), App.Vector(-67.2, -114.6, 0)), False)
sketch4.addGeometry(Part.LineSegment(App.Vector(-67.2, -114.6, 0), App.Vector(-65, -114.6, 0)), False)
sketch4.addGeometry(Part.LineSegment(App.Vector(-65, -114.6, 0), App.Vector(-65, -111.6, 0)), False)
sketch4.addGeometry(Part.LineSegment(App.Vector(-78.3, -62, 0), App.Vector(-85, -37.1, 0)), False)
sketch4.addGeometry(Part.LineSegment(App.Vector(-85, -37.1, 0), App.Vector(-87.8, -37.8, 0)), False)
sketch4.addGeometry(Part.LineSegment(App.Vector(-87.8, -37.8, 0), App.Vector(-81.1, -62.8, 0)), False)
sketch4.addGeometry(Part.LineSegment(App.Vector(-81.1, -62.8, 0), App.Vector(-78.3, -62, 0)), False)
sketch4.addGeometry(Part.LineSegment(App.Vector(-91.6, -12.5, 0), App.Vector(-98.2, 12.5, 0)), False)
sketch4.addGeometry(Part.LineSegment(App.Vector(-98.2, 12.5, 0), App.Vector(-101, 11.7, 0)), False)
sketch4.addGeometry(Part.LineSegment(App.Vector(-101, 11.7, 0), App.Vector(-94.4, -13.2, 0)), False)
sketch4.addGeometry(Part.LineSegment(App.Vector(-94.4, -13.2, 0), App.Vector(-91.6, -12.5, 0)), False)
sketch4.addGeometry(Part.LineSegment(App.Vector(-104.8, 37.1, 0), App.Vector(-111.5, 62, 0)), False)
sketch4.addGeometry(Part.LineSegment(App.Vector(-111.5, 62, 0), App.Vector(-114.3, 61.3, 0)), False)
sketch4.addGeometry(Part.LineSegment(App.Vector(-114.3, 61.3, 0), App.Vector(-107.6, 36.3, 0)), False)
sketch4.addGeometry(Part.LineSegment(App.Vector(-107.6, 36.3, 0), App.Vector(-104.8, 37.1, 0)), False)
sketch4.addGeometry(Part.LineSegment(App.Vector(-127.8, 111.6, 0), App.Vector(-120.9, 85.9, 0)), False)
sketch4.addGeometry(Part.LineSegment(App.Vector(-120.9, 85.9, 0), App.Vector(-118.1, 86.7, 0)), False)
sketch4.addGeometry(Part.LineSegment(App.Vector(-118.1, 86.7, 0), App.Vector(-124.8, 111.6, 0)), False)
sketch4.addGeometry(Part.LineSegment(App.Vector(-124.8, 111.6, 0), App.Vector(-124.8, 114.6, 0)), False)
sketch4.addGeometry(Part.LineSegment(App.Vector(-124.8, 114.6, 0), App.Vector(-127.8, 114.6, 0)), False)
sketch4.addGeometry(Part.LineSegment(App.Vector(-127.8, 114.6, 0), App.Vector(-127.8, 111.6, 0)), False)
sketch4.addConstraint(Sketcher.Constraint("Coincident", 0, 2, 1, 1))
sketch4.addConstraint(Sketcher.Constraint("Coincident", 1, 2, 2, 1))
sketch4.addConstraint(Sketcher.Constraint("Coincident", 2, 2, 3, 1))
sketch4.addConstraint(Sketcher.Constraint("Coincident", 3, 2, 4, 1))
sketch4.addConstraint(Sketcher.Constraint("Coincident", 4, 2, 5, 1))
sketch4.addConstraint(Sketcher.Constraint("Coincident", 5, 2, 0, 1))
sketch4.addConstraint(Sketcher.Constraint("Coincident", 6, 2, 7, 1))
sketch4.addConstraint(Sketcher.Constraint("Coincident", 7, 2, 8, 1))
sketch4.addConstraint(Sketcher.Constraint("Coincident", 8, 2, 9, 1))
sketch4.addConstraint(Sketcher.Constraint("Coincident", 9, 2, 10, 1))
sketch4.addConstraint(Sketcher.Constraint("Coincident", 10, 2, 6, 1))
sketch4.addConstraint(Sketcher.Constraint("Coincident", 11, 2, 12, 1))
sketch4.addConstraint(Sketcher.Constraint("Coincident", 12, 2, 13, 1))
sketch4.addConstraint(Sketcher.Constraint("Coincident", 13, 2, 14, 1))
sketch4.addConstraint(Sketcher.Constraint("Coincident", 14, 2, 11, 1))
sketch4.addConstraint(Sketcher.Constraint("Coincident", 15, 2, 16, 1))
sketch4.addConstraint(Sketcher.Constraint("Coincident", 16, 2, 17, 1))
sketch4.addConstraint(Sketcher.Constraint("Coincident", 17, 2, 18, 1))
sketch4.addConstraint(Sketcher.Constraint("Coincident", 18, 2, 15, 1))
sketch4.addConstraint(Sketcher.Constraint("Coincident", 19, 2, 20, 1))
sketch4.addConstraint(Sketcher.Constraint("Coincident", 20, 2, 21, 1))
sketch4.addConstraint(Sketcher.Constraint("Coincident", 21, 2, 22, 1))
sketch4.addConstraint(Sketcher.Constraint("Coincident", 22, 2, 19, 1))
sketch4.addConstraint(Sketcher.Constraint("Coincident", 23, 2, 24, 1))
sketch4.addConstraint(Sketcher.Constraint("Coincident", 24, 2, 25, 1))
sketch4.addConstraint(Sketcher.Constraint("Coincident", 25, 2, 26, 1))
sketch4.addConstraint(Sketcher.Constraint("Coincident", 26, 2, 27, 1))
sketch4.addConstraint(Sketcher.Constraint("Coincident", 27, 2, 23, 1))
sketch4.addConstraint(Sketcher.Constraint("Coincident", 28, 2, 29, 1))
sketch4.addConstraint(Sketcher.Constraint("Coincident", 29, 2, 30, 1))
sketch4.addConstraint(Sketcher.Constraint("Coincident", 30, 2, 31, 1))
sketch4.addConstraint(Sketcher.Constraint("Coincident", 31, 2, 28, 1))
sketch4.addConstraint(Sketcher.Constraint("Coincident", 32, 2, 33, 1))
sketch4.addConstraint(Sketcher.Constraint("Coincident", 33, 2, 34, 1))
sketch4.addConstraint(Sketcher.Constraint("Coincident", 34, 2, 35, 1))
sketch4.addConstraint(Sketcher.Constraint("Coincident", 35, 2, 32, 1))
sketch4.addConstraint(Sketcher.Constraint("Coincident", 36, 2, 37, 1))
sketch4.addConstraint(Sketcher.Constraint("Coincident", 37, 2, 38, 1))
sketch4.addConstraint(Sketcher.Constraint("Coincident", 38, 2, 39, 1))
sketch4.addConstraint(Sketcher.Constraint("Coincident", 39, 2, 36, 1))
sketch4.addConstraint(Sketcher.Constraint("Coincident", 40, 2, 41, 1))
sketch4.addConstraint(Sketcher.Constraint("Coincident", 41, 2, 42, 1))
sketch4.addConstraint(Sketcher.Constraint("Coincident", 42, 2, 43, 1))
sketch4.addConstraint(Sketcher.Constraint("Coincident", 43, 2, 44, 1))
sketch4.addConstraint(Sketcher.Constraint("Coincident", 44, 2, 45, 1))
sketch4.addConstraint(Sketcher.Constraint("Coincident", 45, 2, 40, 1))
sketch4.addConstraint(Sketcher.Constraint("Horizontal", 0))
sketch4.addConstraint(Sketcher.Constraint("Vertical", 1))
sketch4.addConstraint(Sketcher.Constraint("Vertical", 5))
sketch4.addConstraint(Sketcher.Constraint("Vertical", 8))
sketch4.addConstraint(Sketcher.Constraint("Horizontal", 9))
sketch4.addConstraint(Sketcher.Constraint("Horizontal", 26))
sketch4.addConstraint(Sketcher.Constraint("Vertical", 27))
sketch4.addConstraint(Sketcher.Constraint("Vertical", 43))
sketch4.addConstraint(Sketcher.Constraint("Horizontal", 44))
sketch4.addConstraint(Sketcher.Constraint("Vertical", 45))
sketch4.addConstraint(Sketcher.Constraint("Symmetric", 6, 2, 23, 2, -2))
sketch4.addConstraint(Sketcher.Constraint("Symmetric", 10, 2, 24, 2, -2))
sketch4.addConstraint(Sketcher.Constraint("Symmetric", 9, 2, 25, 2, -2))
sketch4.addConstraint(Sketcher.Constraint("Symmetric", 7, 2, 27, 2, -2))
sketch4.addConstraint(Sketcher.Constraint("Symmetric", 11, 2, 28, 2, -2))
sketch4.addConstraint(Sketcher.Constraint("Symmetric", 14, 2, 29, 2, -2))
sketch4.addConstraint(Sketcher.Constraint("Symmetric", 13, 2, 30, 2, -2))
sketch4.addConstraint(Sketcher.Constraint("Symmetric", 12, 2, 31, 2, -2))
sketch4.addConstraint(Sketcher.Constraint("Symmetric", 15, 2, 32, 2, -2))
sketch4.addConstraint(Sketcher.Constraint("Symmetric", 18, 2, 33, 2, -2))
sketch4.addConstraint(Sketcher.Constraint("Symmetric", 17, 2, 34, 2, -2))
sketch4.addConstraint(Sketcher.Constraint("Symmetric", 16, 2, 35, 2, -2))
sketch4.addConstraint(Sketcher.Constraint("Symmetric", 19, 2, 36, 2, -2))
sketch4.addConstraint(Sketcher.Constraint("Symmetric", 22, 2, 37, 2, -2))
sketch4.addConstraint(Sketcher.Constraint("Symmetric", 21, 2, 38, 2, -2))
sketch4.addConstraint(Sketcher.Constraint("Symmetric", 20, 2, 39, 2, -2))
sketch4.addConstraint(Sketcher.Constraint("Symmetric", 3, 2, 40, 2, -2))
sketch4.addConstraint(Sketcher.Constraint("Symmetric", 2, 2, 41, 2, -2))
sketch4.addConstraint(Sketcher.Constraint("Symmetric", 1, 2, 42, 2, -2))
sketch4.addConstraint(Sketcher.Constraint("Symmetric", 5, 2, 44, 2, -2))
sketch4.addConstraint(Sketcher.Constraint("Perpendicular", 2, 3))
sketch4.addConstraint(Sketcher.Constraint("Perpendicular", 3, 4))
sketch4.addConstraint(Sketcher.Constraint("Perpendicular", 4, 6))
sketch4.addConstraint(Sketcher.Constraint("Perpendicular", 6, 7))
sketch4.addConstraint(Sketcher.Constraint("Parallel", 7, 10))
sketch4.addConstraint(Sketcher.Constraint("Perpendicular", 10, 11))
sketch4.addConstraint(Sketcher.Constraint("Perpendicular", 11, 12))
sketch4.addConstraint(Sketcher.Constraint("Perpendicular", 12, 13))
sketch4.addConstraint(Sketcher.Constraint("Perpendicular", 13, 14))
sketch4.addConstraint(Sketcher.Constraint("Perpendicular", 14, 15))
sketch4.addConstraint(Sketcher.Constraint("Perpendicular", 15, 16))
sketch4.addConstraint(Sketcher.Constraint("Perpendicular", 16, 17))
sketch4.addConstraint(Sketcher.Constraint("Perpendicular", 17, 18))
sketch4.addConstraint(Sketcher.Constraint("Perpendicular", 18, 19))
sketch4.addConstraint(Sketcher.Constraint("Perpendicular", 19, 20))
sketch4.addConstraint(Sketcher.Constraint("Perpendicular", 20, 21))
sketch4.addConstraint(Sketcher.Constraint("Perpendicular", 21, 22))
sketch4.addConstraint(Sketcher.Constraint("Perpendicular", 39, 40))
sketch4.addConstraint(Sketcher.Constraint("Horizontal", 1, 2, 4, 2))
sketch4.addConstraint(Sketcher.Constraint("Equal", 44, 1))
sketch4.addConstraint(Sketcher.Constraint("Equal", 5, 8))
sketch4.addConstraint(Sketcher.Constraint("Equal", 3, 6))
sketch4.addConstraint(Sketcher.Constraint("Equal", 2, 7))
sketch4.addConstraint(Sketcher.Constraint("Equal", 6, 11))
sketch4.addConstraint(Sketcher.Constraint("Equal", 7, 12))
sketch4.addConstraint(Sketcher.Constraint("Equal", 13, 15))
sketch4.addConstraint(Sketcher.Constraint("Equal", 14, 16))
sketch4.addConstraint(Sketcher.Constraint("Equal", 17, 19))
sketch4.addConstraint(Sketcher.Constraint("Equal", 18, 20))
sketch4.addConstraint(Sketcher.Constraint("DistanceX", 0, 2, 0, 1, 3.0))
sketch4.addConstraint(Sketcher.Constraint("Angle", 2, Q("-105 deg")))
sketch4.addConstraint(Sketcher.Constraint("DistanceX", -1, 1, 7, 2, 65.0))
sketch4.addConstraint(Sketcher.Constraint("DistanceX", -1, 1, 0, 2, 124.8))
sketch4.addConstraint(Sketcher.Constraint("DistanceX", -1, 1, 13, 2, 81.0793))
sketch4.addConstraint(Sketcher.Constraint("DistanceX", 9, 2, 6, 2, 4.482801))
sketch4.addConstraint(Sketcher.Constraint("DistanceX", 11, 2, 18, 2, 16.0793))
sketch4.addConstraint(Sketcher.Constraint("DistanceX", 37, 2, 32, 2, 16.0793))
sketch4.addConstraint(Sketcher.Constraint("DistanceY", -1, 1, 0, 2, 114.588319))
sketch4.addConstraint(Sketcher.Constraint("DistanceY", 7, 2, -1, 1, 111.588319))
sketch4.addConstraint(Sketcher.Constraint("DistanceY", 12, 2, -1, 1, 62.025708))
sketch4.addConstraint(Sketcher.Constraint("DistanceY", -1, 1, 19, 2, 62.025708))
sketch4.addConstraint(Sketcher.Constraint("DistanceY", 11, 2, 15, 2, 49.562611))
pad4 = doc.addObject("PartDesign::Pad", "Pad003")
body.addObject(pad4)
pad4.Profile = sketch4
pad4.Type = "UpToLast"
pad4.Reversed = True

doc.recompute()
